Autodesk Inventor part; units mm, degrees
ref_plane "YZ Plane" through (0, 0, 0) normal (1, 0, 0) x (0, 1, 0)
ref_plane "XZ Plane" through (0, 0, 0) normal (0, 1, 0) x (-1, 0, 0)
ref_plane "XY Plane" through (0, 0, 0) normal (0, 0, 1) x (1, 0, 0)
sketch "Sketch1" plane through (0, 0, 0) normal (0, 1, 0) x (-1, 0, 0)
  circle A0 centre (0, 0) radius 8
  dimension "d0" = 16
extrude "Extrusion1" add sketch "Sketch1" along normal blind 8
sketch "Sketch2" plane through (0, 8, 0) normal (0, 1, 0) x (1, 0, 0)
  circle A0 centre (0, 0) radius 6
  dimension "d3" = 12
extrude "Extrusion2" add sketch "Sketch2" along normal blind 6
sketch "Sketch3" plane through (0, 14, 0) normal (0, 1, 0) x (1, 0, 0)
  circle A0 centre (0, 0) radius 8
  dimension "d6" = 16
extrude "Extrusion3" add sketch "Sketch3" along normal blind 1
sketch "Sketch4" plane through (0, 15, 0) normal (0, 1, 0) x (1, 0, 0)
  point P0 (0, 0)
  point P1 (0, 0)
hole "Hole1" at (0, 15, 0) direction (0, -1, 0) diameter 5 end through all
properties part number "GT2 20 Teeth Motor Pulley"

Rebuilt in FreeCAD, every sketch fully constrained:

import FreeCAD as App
import Part
import Sketcher

V = App.Vector

doc = App.newDocument("Part")
body = doc.addObject("PartDesign::Body", "Body")

# Sketch on XZ plane
sketch1 = body.newObject("Sketcher::SketchObject", "Sketch")
sketch1.AttachmentSupport = (doc.getObject("XZ_Plane"), [""])
sketch1.MapMode = "FlatFace"
sketch1.addGeometry(Part.Circle(V(0, 0, 0), V(0, 0, 1), 8), False)
sketch1.addConstraint(Sketcher.Constraint("Coincident", 0, 3, -1, 1))
sketch1.addConstraint(Sketcher.Constraint("Diameter", 0, 16.0))
pad1 = body.newObject("PartDesign::Pad", "Pad")
pad1.Profile = sketch1
pad1.Length = 8
pad1.Reversed = True

# Sketch on XZ plane
sketch2 = body.newObject("Sketcher::SketchObject", "Sketch001")
sketch2.AttachmentSupport = (doc.getObject("XZ_Plane"), [""])
sketch2.MapMode = "FlatFace"
sketch2.AttachmentOffset = App.Placement(V(0, 0, -8), App.Rotation())
sketch2.addGeometry(Part.Circle(V(0, 0, 0), V(0, 0, 1), 6), False)
sketch2.addConstraint(Sketcher.Constraint("Coincident", 0, 3, -1, 1))
sketch2.addConstraint(Sketcher.Constraint("Diameter", 0, 12.0))
pad2 = body.newObject("PartDesign::Pad", "Pad001")
pad2.Profile = sketch2
pad2.Length = 6
pad2.Reversed = True

# Sketch on XZ plane
sketch3 = body.newObject("Sketcher::SketchObject", "Sketch002")
sketch3.AttachmentSupport = (doc.getObject("XZ_Plane"), [""])
sketch3.MapMode = "FlatFace"
sketch3.AttachmentOffset = App.Placement(V(0, 0, -14), App.Rotation())
sketch3.addGeometry(Part.Circle(V(0, 0, 0), V(0, 0, 1), 8), False)
sketch3.addConstraint(Sketcher.Constraint("Coincident", 0, 3, -1, 1))
sketch3.addConstraint(Sketcher.Constraint("Diameter", 0, 16.0))
pad3 = body.newObject("PartDesign::Pad", "Pad002")
pad3.Profile = sketch3
pad3.Length = 1
pad3.Reversed = True

# Sketch on XZ plane
sketch4 = body.newObject("Sketcher::SketchObject", "Sketch003")
sketch4.AttachmentSupport = (doc.getObject("XZ_Plane"), [""])
sketch4.MapMode = "FlatFace"
sketch4.AttachmentOffset = App.Placement(V(0, 0, -15), App.Rotation())
sketch4.addGeometry(Part.Circle(V(0, 0, 0), V(0, 0, 1), 2.5), False)
sketch4.addConstraint(Sketcher.Constraint("Coincident", 0, 3, -1, 1))
sketch4.addConstraint(Sketcher.Constraint("Diameter", 0, 5.0))
doc.recompute()
hole = body.newObject("PartDesign::Hole", "Hole")
hole.Profile = sketch4
hole.ThreadType = "None"
hole.Diameter = 5
hole.DepthType = "ThroughAll"
hole.Reversed = True

doc.recompute()
